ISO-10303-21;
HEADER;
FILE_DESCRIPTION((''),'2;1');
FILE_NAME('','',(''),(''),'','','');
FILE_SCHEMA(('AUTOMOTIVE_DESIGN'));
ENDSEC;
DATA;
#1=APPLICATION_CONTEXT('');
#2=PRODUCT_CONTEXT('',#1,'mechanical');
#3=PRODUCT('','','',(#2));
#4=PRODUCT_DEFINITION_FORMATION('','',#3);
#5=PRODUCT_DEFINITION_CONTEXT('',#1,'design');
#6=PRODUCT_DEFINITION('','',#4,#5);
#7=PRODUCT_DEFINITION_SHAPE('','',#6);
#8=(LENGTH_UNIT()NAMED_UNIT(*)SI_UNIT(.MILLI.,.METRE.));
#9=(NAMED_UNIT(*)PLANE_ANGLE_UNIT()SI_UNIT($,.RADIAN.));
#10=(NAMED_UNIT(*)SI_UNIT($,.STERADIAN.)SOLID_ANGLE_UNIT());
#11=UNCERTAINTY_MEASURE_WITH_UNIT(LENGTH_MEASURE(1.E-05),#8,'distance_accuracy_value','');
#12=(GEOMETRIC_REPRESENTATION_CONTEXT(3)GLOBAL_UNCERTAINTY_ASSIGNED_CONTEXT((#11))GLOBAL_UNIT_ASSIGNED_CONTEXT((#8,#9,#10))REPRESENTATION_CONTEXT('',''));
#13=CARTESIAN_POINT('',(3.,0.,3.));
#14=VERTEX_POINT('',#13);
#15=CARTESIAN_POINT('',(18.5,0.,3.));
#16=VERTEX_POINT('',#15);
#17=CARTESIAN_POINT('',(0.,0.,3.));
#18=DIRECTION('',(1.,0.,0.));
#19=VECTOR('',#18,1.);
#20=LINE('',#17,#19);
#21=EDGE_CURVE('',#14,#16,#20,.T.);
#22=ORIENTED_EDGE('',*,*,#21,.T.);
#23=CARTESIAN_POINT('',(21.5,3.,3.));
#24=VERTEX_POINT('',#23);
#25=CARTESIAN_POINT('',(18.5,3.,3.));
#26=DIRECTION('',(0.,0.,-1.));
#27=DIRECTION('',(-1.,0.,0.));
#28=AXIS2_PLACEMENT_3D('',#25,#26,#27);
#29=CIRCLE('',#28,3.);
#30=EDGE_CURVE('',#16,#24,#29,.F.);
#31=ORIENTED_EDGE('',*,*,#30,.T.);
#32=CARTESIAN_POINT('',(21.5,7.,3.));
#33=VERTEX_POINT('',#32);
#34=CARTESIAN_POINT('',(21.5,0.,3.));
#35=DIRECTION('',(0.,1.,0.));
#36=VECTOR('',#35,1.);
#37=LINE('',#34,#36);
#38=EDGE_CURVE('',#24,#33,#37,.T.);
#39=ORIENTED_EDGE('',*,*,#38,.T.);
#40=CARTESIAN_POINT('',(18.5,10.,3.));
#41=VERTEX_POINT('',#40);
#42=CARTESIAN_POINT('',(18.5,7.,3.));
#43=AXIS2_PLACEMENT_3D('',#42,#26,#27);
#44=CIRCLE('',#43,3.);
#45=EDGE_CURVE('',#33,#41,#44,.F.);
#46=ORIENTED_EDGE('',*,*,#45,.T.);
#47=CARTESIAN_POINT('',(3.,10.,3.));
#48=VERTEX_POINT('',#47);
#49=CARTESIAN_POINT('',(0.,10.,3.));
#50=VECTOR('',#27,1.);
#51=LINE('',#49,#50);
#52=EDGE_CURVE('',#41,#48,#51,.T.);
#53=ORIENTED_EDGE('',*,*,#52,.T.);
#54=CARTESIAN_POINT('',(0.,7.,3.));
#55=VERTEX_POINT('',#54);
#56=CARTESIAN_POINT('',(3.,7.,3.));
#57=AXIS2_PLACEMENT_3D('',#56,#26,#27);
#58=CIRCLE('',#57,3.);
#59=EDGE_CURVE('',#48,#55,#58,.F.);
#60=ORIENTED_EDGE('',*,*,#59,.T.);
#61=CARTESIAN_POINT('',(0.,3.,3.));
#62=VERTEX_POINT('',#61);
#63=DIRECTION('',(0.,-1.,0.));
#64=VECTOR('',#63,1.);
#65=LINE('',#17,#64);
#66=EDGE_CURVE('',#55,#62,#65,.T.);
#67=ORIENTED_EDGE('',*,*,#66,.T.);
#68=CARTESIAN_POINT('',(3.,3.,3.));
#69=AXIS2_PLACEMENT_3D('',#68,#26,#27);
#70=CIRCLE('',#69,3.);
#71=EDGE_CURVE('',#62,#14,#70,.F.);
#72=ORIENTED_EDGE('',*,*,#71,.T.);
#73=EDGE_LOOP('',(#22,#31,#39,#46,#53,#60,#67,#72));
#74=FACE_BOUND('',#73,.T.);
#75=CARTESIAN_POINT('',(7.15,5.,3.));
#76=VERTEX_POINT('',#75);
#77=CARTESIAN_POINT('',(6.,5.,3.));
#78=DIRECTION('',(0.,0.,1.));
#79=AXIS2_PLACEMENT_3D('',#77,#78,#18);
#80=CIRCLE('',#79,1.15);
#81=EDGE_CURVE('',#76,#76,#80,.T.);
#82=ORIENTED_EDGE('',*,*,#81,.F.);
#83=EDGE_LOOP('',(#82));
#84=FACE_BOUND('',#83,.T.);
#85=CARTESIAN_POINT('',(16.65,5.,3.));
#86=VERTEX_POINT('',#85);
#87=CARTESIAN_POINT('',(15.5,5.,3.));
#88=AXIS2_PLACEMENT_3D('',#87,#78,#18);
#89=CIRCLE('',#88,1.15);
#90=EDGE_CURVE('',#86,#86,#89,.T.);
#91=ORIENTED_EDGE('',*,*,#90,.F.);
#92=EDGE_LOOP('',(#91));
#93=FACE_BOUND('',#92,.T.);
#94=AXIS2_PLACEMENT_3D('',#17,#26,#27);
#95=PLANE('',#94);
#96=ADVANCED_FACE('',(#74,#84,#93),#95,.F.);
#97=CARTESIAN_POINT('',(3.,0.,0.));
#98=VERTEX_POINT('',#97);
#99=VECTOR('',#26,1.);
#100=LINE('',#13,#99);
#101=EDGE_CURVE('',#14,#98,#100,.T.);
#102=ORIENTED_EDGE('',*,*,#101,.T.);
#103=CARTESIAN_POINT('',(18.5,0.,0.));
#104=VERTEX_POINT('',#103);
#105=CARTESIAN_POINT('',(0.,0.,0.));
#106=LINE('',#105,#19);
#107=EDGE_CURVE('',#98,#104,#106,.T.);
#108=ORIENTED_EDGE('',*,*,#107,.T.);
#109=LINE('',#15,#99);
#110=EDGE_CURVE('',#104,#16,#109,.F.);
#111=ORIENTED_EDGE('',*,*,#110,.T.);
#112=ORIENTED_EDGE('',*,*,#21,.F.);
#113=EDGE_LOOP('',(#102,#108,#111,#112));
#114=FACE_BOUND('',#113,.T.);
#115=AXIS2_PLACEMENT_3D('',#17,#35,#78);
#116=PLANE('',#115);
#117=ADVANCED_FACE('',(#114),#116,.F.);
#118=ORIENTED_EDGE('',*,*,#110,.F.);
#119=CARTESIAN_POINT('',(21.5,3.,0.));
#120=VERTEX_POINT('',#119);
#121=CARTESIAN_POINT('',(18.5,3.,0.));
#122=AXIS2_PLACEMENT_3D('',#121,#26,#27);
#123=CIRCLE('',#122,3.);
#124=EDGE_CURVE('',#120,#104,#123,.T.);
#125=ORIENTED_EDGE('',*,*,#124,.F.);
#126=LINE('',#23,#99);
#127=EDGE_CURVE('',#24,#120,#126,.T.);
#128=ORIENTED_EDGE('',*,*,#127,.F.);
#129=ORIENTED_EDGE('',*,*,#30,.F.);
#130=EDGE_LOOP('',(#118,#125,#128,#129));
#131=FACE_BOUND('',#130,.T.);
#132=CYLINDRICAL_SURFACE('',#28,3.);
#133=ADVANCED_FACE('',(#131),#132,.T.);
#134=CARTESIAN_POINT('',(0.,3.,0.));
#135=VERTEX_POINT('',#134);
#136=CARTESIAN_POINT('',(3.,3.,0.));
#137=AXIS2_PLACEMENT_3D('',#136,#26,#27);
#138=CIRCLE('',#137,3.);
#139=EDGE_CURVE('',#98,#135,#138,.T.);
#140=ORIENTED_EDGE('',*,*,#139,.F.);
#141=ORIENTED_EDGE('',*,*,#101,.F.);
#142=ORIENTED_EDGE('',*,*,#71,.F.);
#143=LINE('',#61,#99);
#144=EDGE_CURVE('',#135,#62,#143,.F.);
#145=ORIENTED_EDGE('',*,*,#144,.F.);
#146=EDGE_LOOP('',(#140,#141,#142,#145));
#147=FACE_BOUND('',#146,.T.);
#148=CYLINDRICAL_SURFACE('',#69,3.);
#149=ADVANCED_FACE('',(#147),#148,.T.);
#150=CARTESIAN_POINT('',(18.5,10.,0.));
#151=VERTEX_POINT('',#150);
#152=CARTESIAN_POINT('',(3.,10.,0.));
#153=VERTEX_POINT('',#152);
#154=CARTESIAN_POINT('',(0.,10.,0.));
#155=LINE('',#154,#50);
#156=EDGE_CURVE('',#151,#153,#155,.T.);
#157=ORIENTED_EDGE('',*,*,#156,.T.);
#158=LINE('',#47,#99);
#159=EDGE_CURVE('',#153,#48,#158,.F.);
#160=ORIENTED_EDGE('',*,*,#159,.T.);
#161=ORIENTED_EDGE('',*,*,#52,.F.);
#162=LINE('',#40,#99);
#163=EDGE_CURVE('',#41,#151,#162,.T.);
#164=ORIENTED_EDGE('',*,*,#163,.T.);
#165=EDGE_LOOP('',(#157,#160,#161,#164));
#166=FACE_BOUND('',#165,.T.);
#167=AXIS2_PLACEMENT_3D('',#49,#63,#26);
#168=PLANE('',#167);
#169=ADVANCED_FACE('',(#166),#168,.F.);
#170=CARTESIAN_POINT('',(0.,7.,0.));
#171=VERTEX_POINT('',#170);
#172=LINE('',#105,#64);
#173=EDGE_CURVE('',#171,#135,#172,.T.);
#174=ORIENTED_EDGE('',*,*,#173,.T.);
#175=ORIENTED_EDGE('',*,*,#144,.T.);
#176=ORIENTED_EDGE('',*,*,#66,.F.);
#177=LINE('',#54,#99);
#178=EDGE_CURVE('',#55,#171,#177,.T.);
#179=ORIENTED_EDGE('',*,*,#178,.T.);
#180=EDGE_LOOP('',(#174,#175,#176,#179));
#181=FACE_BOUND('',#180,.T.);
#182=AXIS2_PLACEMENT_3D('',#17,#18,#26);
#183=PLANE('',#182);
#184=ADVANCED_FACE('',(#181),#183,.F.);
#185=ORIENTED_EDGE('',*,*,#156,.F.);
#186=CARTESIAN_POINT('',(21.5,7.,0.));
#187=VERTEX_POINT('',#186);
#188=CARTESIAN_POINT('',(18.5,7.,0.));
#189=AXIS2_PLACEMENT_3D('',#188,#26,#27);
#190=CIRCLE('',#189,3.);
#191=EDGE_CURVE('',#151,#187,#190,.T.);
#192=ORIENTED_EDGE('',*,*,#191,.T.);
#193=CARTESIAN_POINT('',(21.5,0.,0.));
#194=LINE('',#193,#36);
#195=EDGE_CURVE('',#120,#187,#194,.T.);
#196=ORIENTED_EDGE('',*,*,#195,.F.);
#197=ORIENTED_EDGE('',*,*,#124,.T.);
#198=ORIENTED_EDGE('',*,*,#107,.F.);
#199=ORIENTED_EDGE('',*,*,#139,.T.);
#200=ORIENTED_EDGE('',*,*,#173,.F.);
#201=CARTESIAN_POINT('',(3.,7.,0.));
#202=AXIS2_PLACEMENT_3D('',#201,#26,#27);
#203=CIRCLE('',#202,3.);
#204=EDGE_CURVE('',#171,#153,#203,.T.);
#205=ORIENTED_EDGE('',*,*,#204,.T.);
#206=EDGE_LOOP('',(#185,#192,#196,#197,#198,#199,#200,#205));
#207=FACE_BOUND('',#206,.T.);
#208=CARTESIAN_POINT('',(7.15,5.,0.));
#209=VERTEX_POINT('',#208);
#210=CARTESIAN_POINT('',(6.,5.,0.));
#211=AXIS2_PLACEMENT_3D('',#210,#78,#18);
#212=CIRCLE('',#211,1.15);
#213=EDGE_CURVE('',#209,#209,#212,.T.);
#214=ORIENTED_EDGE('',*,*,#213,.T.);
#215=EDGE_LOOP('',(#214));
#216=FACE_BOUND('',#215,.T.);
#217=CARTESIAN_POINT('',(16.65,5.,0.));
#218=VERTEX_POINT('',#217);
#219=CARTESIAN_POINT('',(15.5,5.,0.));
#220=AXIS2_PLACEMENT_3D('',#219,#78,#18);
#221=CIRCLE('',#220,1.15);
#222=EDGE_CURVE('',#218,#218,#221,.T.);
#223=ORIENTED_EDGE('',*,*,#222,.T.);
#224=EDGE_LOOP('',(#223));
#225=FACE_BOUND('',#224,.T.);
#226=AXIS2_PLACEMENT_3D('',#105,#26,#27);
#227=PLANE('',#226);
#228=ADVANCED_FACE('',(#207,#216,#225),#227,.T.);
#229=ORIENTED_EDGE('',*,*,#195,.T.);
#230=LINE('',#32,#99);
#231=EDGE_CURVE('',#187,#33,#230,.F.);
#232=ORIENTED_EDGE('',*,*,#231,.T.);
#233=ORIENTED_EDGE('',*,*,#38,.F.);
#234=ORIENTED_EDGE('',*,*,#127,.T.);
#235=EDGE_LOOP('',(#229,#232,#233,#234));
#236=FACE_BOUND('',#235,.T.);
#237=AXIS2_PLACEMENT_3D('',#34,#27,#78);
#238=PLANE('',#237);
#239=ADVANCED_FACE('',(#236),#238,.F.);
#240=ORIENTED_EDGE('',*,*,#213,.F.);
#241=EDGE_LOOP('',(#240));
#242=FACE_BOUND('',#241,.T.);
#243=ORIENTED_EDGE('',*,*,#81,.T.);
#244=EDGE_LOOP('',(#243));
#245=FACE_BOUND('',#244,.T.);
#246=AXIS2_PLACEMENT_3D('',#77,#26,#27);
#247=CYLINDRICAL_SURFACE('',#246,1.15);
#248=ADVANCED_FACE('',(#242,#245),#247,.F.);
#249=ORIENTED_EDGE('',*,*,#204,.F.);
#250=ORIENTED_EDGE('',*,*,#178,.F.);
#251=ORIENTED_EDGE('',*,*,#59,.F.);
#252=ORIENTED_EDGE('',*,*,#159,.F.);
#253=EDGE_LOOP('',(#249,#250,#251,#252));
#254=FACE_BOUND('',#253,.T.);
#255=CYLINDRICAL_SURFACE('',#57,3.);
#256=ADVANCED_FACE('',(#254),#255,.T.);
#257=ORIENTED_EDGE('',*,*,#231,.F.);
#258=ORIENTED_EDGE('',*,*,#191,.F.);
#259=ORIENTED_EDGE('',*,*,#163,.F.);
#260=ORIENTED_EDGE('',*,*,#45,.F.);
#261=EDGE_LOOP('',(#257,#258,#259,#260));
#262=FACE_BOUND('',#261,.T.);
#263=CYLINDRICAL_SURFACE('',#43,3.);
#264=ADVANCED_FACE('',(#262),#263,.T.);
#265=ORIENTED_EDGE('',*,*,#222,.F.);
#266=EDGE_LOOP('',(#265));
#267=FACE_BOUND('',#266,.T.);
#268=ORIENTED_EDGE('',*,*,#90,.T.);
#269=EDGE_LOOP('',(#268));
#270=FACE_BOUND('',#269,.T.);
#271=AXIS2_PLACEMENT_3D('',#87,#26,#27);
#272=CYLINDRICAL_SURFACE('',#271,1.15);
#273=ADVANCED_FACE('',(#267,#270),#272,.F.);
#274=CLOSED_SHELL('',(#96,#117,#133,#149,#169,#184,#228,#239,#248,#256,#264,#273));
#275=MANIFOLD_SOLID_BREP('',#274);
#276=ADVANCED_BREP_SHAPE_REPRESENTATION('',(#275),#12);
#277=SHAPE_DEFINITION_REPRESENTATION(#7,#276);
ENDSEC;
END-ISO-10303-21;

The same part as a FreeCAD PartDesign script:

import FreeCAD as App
import Part
import Sketcher


def edges_at(feature, points):
    """Names of the edges that pass closest to the given points."""
    edges = feature.Shape.Edges
    near = lambda p: min(range(len(edges)), key=lambda i: edges[i].distToShape(Part.Vertex(*p))[0])
    return sorted({f"Edge{near(p) + 1}" for p in points})


def add_polygon(sketch, points):
    """Adds a closed chain of lines whose ends are joined by coincident constraints."""
    first, n = sketch.GeometryCount, len(points)
    for a, b in zip(points, points[1:] + points[:1]):
        sketch.addGeometry(Part.LineSegment(App.Vector(*a, 0), App.Vector(*b, 0)), False)
    for i in range(n):
        sketch.addConstraint(Sketcher.Constraint("Coincident", first + i, 2, first + (i + 1) % n, 1))

doc = App.newDocument("Part")
body = doc.addObject("PartDesign::Body", "Body")

sketch1 = body.newObject("Sketcher::SketchObject", "Sketch")
sketch1.AttachmentSupport = (doc.getObject("XY_Plane"), [""])
sketch1.MapMode = "FlatFace"
add_polygon(sketch1, [(0, 10), (0, 0), (21.5, 0), (21.5, 10)])
sketch1.addGeometry(Part.Circle(App.Vector(6, 5, 0), App.Vector(0, 0, 1), 1.1), False)
sketch1.addGeometry(Part.Circle(App.Vector(15.5, 5, 0), App.Vector(0, 0, 1), 1.1), False)
sketch1.addConstraint(Sketcher.Constraint("Vertical", 0))
sketch1.addConstraint(Sketcher.Constraint("Horizontal", 1))
sketch1.addConstraint(Sketcher.Constraint("Vertical", 2))
sketch1.addConstraint(Sketcher.Constraint("Horizontal", 3))
sketch1.addConstraint(Sketcher.Constraint("Coincident", 0, 2, -1, 1))
sketch1.addConstraint(Sketcher.Constraint("Equal", 4, 5))
sketch1.addConstraint(Sketcher.Constraint("Horizontal", 4, 3, 5, 3))
sketch1.addConstraint(Sketcher.Constraint("Diameter", 4, 2.3))
sketch1.addConstraint(Sketcher.Constraint("DistanceY", 0, 2, 0, 1, 10.0))
sketch1.addConstraint(Sketcher.Constraint("DistanceX", 1, 1, 1, 2, 21.5))
sketch1.addConstraint(Sketcher.Constraint("DistanceX", -1, 1, 4, 3, 6.0))
sketch1.addConstraint(Sketcher.Constraint("DistanceY", -1, 1, 4, 3, 5.0))
sketch1.addConstraint(Sketcher.Constraint("DistanceX", 5, 3, 1, 2, 6.0))
pad1 = body.newObject("PartDesign::Pad", "Pad")
pad1.Profile = sketch1
pad1.Length = 3
doc.recompute()

fillet = body.newObject("PartDesign::Fillet", "Fillet")
fillet.Base = (pad1, edges_at(pad1, [
    (0, 10, 1.5),
    (21.5, 10, 1.5),
    (21.5, 0, 1.5),
    (0, 0, 1.5),
]))
fillet.Radius = 3

doc.recompute()
